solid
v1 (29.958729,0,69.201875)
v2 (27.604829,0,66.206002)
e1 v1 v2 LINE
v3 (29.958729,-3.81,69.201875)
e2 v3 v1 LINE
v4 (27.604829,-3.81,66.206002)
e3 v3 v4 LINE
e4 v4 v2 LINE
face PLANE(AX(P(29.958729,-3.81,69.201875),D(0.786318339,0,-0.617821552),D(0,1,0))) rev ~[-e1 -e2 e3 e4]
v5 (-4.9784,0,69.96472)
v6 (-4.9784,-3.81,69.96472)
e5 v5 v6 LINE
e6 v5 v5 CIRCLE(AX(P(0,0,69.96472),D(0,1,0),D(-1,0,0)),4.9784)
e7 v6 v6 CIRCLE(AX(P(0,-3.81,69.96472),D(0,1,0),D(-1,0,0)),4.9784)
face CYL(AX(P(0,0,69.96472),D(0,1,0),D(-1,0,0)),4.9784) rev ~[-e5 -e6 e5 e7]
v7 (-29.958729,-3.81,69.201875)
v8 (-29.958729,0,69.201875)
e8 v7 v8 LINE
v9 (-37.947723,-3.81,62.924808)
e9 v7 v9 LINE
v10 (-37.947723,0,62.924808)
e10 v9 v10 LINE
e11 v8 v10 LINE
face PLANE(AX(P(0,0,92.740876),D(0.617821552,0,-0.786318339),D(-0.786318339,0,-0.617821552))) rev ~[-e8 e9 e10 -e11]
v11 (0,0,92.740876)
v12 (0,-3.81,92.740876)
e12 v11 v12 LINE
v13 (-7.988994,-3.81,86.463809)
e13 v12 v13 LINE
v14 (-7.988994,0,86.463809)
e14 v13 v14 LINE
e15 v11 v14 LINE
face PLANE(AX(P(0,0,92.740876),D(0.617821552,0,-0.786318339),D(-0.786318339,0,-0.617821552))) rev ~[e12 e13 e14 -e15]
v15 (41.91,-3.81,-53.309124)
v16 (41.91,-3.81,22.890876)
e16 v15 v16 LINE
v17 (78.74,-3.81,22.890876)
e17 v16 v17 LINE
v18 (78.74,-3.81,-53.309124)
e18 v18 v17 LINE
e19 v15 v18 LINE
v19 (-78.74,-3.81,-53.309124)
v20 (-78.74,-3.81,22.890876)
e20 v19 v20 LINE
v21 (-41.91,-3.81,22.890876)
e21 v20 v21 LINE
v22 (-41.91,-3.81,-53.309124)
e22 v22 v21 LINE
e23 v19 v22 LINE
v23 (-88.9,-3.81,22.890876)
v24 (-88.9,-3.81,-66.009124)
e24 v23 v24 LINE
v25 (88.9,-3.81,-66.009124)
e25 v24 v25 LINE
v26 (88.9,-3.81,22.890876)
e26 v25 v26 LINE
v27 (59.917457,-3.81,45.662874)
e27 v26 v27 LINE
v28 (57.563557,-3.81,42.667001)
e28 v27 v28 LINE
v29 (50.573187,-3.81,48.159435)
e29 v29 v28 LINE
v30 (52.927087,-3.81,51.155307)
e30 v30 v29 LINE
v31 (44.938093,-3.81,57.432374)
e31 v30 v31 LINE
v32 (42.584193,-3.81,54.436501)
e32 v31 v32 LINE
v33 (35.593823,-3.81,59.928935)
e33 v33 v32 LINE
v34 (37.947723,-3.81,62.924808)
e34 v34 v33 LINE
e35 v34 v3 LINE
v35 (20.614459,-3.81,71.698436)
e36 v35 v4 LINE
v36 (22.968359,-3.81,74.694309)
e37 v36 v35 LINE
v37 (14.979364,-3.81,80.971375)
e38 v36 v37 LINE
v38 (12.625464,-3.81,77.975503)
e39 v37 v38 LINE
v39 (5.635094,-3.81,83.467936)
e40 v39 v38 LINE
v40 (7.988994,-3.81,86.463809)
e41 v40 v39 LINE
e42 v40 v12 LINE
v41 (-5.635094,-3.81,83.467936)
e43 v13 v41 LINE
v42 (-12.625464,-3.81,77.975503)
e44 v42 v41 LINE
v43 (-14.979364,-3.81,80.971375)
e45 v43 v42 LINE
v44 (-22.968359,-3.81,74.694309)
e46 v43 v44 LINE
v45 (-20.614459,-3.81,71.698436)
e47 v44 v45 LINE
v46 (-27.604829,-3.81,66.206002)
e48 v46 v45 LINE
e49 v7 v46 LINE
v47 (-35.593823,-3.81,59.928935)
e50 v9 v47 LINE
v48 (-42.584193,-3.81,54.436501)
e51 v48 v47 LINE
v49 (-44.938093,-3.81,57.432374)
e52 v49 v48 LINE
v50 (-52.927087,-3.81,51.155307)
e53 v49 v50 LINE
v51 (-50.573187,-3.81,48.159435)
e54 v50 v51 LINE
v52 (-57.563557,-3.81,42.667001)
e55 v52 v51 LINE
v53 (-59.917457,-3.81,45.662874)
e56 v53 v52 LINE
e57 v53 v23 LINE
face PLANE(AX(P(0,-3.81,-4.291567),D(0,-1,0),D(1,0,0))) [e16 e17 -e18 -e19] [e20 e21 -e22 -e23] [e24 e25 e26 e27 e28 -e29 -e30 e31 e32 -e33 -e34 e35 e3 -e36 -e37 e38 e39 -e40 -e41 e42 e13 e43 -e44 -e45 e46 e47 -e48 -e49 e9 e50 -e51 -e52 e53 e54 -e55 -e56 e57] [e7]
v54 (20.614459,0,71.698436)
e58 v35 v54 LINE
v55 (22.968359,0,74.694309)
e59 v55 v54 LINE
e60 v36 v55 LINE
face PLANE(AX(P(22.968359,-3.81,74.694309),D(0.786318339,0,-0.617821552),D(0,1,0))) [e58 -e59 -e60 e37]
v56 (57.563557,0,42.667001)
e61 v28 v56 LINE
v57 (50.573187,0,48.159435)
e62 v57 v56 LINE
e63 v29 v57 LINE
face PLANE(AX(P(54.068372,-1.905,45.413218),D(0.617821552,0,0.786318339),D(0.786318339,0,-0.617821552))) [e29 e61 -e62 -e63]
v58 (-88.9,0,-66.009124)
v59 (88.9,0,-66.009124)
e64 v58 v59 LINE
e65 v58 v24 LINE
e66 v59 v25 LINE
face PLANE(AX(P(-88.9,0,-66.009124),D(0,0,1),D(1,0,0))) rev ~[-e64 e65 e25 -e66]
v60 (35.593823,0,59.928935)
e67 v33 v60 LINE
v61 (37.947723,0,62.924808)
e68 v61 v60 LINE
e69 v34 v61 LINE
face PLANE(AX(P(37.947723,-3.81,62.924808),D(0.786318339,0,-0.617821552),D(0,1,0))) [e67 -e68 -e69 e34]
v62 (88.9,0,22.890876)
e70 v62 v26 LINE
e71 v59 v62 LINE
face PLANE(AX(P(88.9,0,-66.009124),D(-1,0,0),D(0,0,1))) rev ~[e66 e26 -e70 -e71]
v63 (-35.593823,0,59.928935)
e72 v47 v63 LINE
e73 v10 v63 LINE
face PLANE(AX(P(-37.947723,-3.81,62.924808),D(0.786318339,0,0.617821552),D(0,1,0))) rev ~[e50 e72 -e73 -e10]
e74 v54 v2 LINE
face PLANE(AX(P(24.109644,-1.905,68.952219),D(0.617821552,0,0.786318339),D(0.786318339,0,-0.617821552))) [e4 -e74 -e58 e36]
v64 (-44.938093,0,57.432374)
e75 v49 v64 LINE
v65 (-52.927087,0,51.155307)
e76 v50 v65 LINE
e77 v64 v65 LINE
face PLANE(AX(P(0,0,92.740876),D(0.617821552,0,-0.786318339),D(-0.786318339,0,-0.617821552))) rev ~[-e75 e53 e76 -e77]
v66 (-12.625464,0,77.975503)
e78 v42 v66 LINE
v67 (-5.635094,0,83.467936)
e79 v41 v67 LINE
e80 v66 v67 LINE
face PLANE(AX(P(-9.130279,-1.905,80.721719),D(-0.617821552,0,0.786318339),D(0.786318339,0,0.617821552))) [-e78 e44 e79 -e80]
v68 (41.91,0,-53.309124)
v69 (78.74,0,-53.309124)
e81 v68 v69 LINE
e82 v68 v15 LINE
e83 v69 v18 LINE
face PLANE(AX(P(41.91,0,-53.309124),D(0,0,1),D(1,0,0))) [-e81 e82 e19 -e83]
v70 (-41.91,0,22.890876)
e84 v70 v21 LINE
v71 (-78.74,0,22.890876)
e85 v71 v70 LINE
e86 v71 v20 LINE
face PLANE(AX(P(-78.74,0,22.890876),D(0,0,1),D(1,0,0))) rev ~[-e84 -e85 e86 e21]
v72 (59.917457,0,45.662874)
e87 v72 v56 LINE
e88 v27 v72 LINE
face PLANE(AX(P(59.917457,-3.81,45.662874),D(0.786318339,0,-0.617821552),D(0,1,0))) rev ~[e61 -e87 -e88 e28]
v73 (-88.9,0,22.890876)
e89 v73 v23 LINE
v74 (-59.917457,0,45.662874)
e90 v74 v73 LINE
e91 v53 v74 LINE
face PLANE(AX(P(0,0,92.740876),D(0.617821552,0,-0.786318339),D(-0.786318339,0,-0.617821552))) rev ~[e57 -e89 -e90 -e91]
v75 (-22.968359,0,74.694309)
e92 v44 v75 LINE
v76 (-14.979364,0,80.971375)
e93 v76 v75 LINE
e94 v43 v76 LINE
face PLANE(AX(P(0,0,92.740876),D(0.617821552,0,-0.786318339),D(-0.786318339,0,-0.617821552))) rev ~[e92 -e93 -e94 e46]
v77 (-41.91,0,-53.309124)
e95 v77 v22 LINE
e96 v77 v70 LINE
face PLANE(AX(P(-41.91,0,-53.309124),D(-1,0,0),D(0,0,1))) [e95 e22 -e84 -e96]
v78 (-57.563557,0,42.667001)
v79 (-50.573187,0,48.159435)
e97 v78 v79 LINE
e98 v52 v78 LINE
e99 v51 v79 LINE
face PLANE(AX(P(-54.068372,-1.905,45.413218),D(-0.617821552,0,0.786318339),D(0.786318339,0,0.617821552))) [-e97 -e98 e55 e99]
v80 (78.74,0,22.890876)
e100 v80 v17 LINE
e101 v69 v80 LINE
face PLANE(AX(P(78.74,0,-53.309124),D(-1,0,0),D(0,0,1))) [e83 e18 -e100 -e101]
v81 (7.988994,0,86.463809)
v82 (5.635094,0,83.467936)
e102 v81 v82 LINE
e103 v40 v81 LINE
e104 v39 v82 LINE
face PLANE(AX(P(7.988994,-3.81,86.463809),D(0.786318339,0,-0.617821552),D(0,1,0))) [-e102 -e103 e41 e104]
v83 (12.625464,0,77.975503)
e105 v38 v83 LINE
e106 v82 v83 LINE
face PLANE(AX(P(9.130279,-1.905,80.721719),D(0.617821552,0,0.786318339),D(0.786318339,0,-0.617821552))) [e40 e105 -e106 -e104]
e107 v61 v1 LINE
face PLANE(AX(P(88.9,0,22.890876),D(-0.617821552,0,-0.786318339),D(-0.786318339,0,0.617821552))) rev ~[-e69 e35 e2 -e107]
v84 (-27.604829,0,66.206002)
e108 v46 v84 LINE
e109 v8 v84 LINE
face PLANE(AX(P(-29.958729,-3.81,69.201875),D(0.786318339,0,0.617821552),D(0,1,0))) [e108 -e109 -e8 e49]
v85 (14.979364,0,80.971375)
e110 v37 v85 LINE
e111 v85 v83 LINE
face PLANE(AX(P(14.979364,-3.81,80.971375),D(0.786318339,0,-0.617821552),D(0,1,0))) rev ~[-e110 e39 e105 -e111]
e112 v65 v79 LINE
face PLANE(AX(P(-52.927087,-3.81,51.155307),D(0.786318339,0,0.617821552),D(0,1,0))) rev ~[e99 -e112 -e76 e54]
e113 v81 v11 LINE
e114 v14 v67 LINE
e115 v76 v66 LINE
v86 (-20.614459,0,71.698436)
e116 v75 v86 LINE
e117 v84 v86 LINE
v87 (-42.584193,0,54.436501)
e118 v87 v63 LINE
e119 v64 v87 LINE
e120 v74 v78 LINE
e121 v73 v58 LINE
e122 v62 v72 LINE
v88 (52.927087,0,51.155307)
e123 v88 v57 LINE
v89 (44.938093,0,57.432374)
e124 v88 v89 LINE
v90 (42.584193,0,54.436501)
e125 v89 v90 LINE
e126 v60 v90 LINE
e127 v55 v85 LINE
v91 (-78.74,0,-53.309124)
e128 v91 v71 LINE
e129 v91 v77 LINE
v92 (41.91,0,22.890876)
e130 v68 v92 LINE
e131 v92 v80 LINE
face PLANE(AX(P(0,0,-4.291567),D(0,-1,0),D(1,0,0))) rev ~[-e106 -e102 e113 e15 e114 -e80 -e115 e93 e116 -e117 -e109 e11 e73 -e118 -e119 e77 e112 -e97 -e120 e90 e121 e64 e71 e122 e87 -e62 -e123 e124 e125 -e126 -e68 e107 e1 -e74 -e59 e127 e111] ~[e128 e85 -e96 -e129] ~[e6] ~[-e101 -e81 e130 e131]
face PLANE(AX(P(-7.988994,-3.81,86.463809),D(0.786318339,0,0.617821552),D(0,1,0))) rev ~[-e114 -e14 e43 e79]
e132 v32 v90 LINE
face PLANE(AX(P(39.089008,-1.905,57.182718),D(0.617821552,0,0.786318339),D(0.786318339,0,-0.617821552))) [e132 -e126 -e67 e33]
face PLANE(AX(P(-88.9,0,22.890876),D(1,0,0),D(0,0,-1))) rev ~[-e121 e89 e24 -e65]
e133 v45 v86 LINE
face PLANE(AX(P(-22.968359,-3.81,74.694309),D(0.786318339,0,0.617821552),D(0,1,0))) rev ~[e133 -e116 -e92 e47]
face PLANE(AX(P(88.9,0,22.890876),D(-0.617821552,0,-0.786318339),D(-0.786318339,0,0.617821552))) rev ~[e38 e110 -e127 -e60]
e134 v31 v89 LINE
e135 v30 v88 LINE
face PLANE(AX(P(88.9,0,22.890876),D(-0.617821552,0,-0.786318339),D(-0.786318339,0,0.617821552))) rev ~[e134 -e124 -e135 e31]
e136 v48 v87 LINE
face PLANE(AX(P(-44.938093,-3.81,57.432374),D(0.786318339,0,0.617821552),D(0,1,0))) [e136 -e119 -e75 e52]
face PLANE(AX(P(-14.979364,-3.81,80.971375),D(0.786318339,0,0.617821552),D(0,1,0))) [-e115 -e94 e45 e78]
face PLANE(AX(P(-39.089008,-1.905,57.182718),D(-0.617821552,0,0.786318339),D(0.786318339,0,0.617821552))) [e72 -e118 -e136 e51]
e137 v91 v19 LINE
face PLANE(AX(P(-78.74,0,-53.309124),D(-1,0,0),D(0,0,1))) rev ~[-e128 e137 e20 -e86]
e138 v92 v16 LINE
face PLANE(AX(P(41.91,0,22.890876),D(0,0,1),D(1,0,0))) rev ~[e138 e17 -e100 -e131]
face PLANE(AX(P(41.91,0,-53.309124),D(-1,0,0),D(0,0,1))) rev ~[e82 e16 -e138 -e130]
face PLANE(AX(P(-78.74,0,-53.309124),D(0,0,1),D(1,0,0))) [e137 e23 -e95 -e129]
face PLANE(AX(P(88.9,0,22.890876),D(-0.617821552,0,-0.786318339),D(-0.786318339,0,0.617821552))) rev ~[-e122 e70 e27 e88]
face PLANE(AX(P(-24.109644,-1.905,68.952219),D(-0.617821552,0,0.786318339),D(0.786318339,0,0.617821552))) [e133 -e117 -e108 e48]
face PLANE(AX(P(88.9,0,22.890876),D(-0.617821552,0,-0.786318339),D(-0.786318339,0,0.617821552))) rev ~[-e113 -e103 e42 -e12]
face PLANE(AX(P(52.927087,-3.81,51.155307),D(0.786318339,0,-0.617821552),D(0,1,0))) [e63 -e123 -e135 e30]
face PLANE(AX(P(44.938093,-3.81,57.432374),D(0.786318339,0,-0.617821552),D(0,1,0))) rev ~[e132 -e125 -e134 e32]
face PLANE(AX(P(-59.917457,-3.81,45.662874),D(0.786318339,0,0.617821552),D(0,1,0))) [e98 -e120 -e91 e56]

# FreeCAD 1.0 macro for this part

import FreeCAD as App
import Part
import Sketcher
Q = App.Units.Quantity

doc = App.newDocument("Part")
body = doc.addObject("PartDesign::Body", "Body")

# Sketch on XZ plane
sketch1 = doc.addObject("Sketcher::SketchObject", "Sketch")
body.addObject(sketch1)
sketch1.AttachmentSupport = (doc.XZ_Plane, [""])
sketch1.MapMode = "FlatFace"
sketch1.addGeometry([
    Part.LineSegment(App.Vector(-88.9, -66.009124, 0), App.Vector(88.9, -66.009124, 0)),  # 0
    Part.LineSegment(App.Vector(88.9, -66.009124, 0), App.Vector(88.9, 22.890876, 0)),  # 1
    Part.LineSegment(App.Vector(88.9, 22.890876, 0), App.Vector(0, 92.740876, 0)),  # 2
    Part.LineSegment(App.Vector(0, 92.740876, 0), App.Vector(-88.9, 22.890876, 0)),  # 3
    Part.LineSegment(App.Vector(-88.9, 22.890876, 0), App.Vector(-88.9, -66.009124, 0)),  # 4
    Part.LineSegment(App.Vector(-41.91, -53.309124, 0), App.Vector(-78.74, -53.309124, 0)),  # 5
    Part.LineSegment(App.Vector(-78.74, -53.309124, 0), App.Vector(-78.74, 22.890876, 0)),  # 6
    Part.LineSegment(App.Vector(-78.74, 22.890876, 0), App.Vector(-41.91, 22.890876, 0)),  # 7
    Part.LineSegment(App.Vector(-41.91, 22.890876, 0), App.Vector(-41.91, -53.309124, 0)),  # 8
    Part.LineSegment(App.Vector(78.74, -53.309124, 0), App.Vector(41.91, -53.309124, 0)),  # 9
    Part.LineSegment(App.Vector(41.91, -53.309124, 0), App.Vector(41.91, 22.890876, 0)),  # 10
    Part.LineSegment(App.Vector(41.91, 22.890876, 0), App.Vector(78.74, 22.890876, 0)),  # 11
    Part.LineSegment(App.Vector(78.74, 22.890876, 0), App.Vector(78.74, -53.309124, 0)),  # 12
], False)
sketch1.addConstraint([
    Sketcher.Constraint("Coincident", 0, 2, 1, 1),
    Sketcher.Constraint("Coincident", 1, 2, 2, 1),
    Sketcher.Constraint("Coincident", 2, 2, 3, 1),
    Sketcher.Constraint("Coincident", 3, 2, 4, 1),
    Sketcher.Constraint("Coincident", 4, 2, 0, 1),
    Sketcher.Constraint("Coincident", 5, 2, 6, 1),
    Sketcher.Constraint("Coincident", 6, 2, 7, 1),
    Sketcher.Constraint("Coincident", 7, 2, 8, 1),
    Sketcher.Constraint("Coincident", 8, 2, 5, 1),
    Sketcher.Constraint("Coincident", 9, 2, 10, 1),
    Sketcher.Constraint("Coincident", 10, 2, 11, 1),
    Sketcher.Constraint("Coincident", 11, 2, 12, 1),
    Sketcher.Constraint("Coincident", 12, 2, 9, 1),
    Sketcher.Constraint("Horizontal", 0),
    Sketcher.Constraint("Vertical", 1),
    Sketcher.Constraint("Vertical", 4),
    Sketcher.Constraint("Horizontal", 5),
    Sketcher.Constraint("Vertical", 6),
    Sketcher.Constraint("Horizontal", 7),
    Sketcher.Constraint("Vertical", 8),
    Sketcher.Constraint("Horizontal", 9),
    Sketcher.Constraint("Vertical", 10),
    Sketcher.Constraint("Horizontal", 11),
    Sketcher.Constraint("Vertical", 12),
    Sketcher.Constraint("Symmetric", 1, 2, 3, 2, -2),
    Sketcher.Constraint("Symmetric", 8, 2, 9, 2, -2),
    Sketcher.Constraint("Symmetric", 6, 2, 11, 2, -2),
    Sketcher.Constraint("PointOnObject", 2, 2, -2),
    Sketcher.Constraint("Horizontal", 3, 2, 6, 2),
    Sketcher.Constraint("DistanceX", 0, 1, 0, 2, Q("7 in")),
    Sketcher.Constraint("DistanceY", 6, 1, 6, 2, Q("3 in")),
    Sketcher.Constraint("DistanceY", 1, 1, 1, 2, Q("3.5 in")),
    Sketcher.Constraint("DistanceX", 5, 2, 5, 1, Q("1.45 in")),
    Sketcher.Constraint("DistanceX", 5, 2, -1, 1, Q("3.1 in")),
    Sketcher.Constraint("DistanceY", 1, 2, 2, 2, Q("2.75 in")),
    Sketcher.Constraint("DistanceY", 0, 2, -1, 1, 66.009124),
])
pad1 = doc.addObject("PartDesign::Pad", "Pad")
body.addObject(pad1)
pad1.Profile = sketch1
pad1.Length = Q("0.15 in")

# Sketch on an angled plane
sketch2 = doc.addObject("Sketcher::SketchObject", "Sketch001")
body.addObject(sketch2)
sketch2.Placement = App.Placement(App.Vector(-45.053927, 0, 57.341362), App.Rotation(App.Vector(0.786318339, 0, 0.617821552), App.Vector(0, 1, 0), App.Vector(-0.617821552, 0, 0.786318339), "ZXY"))
sketch2.addGeometry([
    Part.LineSegment(App.Vector(-18.902688, 0, 0), App.Vector(-18.902688, -3.81, 0)),  # 0
    Part.LineSegment(App.Vector(-18.902688, -3.81, 0), App.Vector(-10.012688, -3.81, 0)),  # 1
    Part.LineSegment(App.Vector(-10.012688, -3.81, 0), App.Vector(-10.012688, 0, 0)),  # 2
    Part.LineSegment(App.Vector(-10.012688, 0, 0), App.Vector(-18.902688, 0, 0)),  # 3
    Part.LineSegment(App.Vector(19.197312, 0, 0), App.Vector(19.197312, -3.81, 0)),  # 4
    Part.LineSegment(App.Vector(19.197312, -3.81, 0), App.Vector(28.087312, -3.81, 0)),  # 5
    Part.LineSegment(App.Vector(28.087312, -3.81, 0), App.Vector(28.087312, 0, 0)),  # 6
    Part.LineSegment(App.Vector(28.087312, 0, 0), App.Vector(19.197312, 0, 0)),  # 7
    Part.LineSegment(App.Vector(38.247312, 0, 0), App.Vector(38.247312, -3.81, 0)),  # 8
    Part.LineSegment(App.Vector(38.247312, -3.81, 0), App.Vector(47.137312, -3.81, 0)),  # 9
    Part.LineSegment(App.Vector(47.137312, -3.81, 0), App.Vector(47.137312, 0, 0)),  # 10
    Part.LineSegment(App.Vector(47.137312, 0, 0), App.Vector(38.247312, 0, 0)),  # 11
    Part.LineSegment(App.Vector(0.147312, 0, 0), App.Vector(0.147312, -3.81, 0)),  # 12
    Part.LineSegment(App.Vector(0.147312, -3.81, 0), App.Vector(9.037312, -3.81, 0)),  # 13
    Part.LineSegment(App.Vector(9.037312, -3.81, 0), App.Vector(9.037312, 0, 0)),  # 14
    Part.LineSegment(App.Vector(9.037312, 0, 0), App.Vector(0.147312, 0, 0)),  # 15
], False)
sketch2.addConstraint([
    Sketcher.Constraint("Coincident", 0, 2, 1, 1),
    Sketcher.Constraint("Coincident", 1, 2, 2, 1),
    Sketcher.Constraint("Coincident", 2, 2, 3, 1),
    Sketcher.Constraint("Coincident", 3, 2, 0, 1),
    Sketcher.Constraint("Coincident", 4, 2, 5, 1),
    Sketcher.Constraint("Coincident", 5, 2, 6, 1),
    Sketcher.Constraint("Coincident", 6, 2, 7, 1),
    Sketcher.Constraint("Coincident", 7, 2, 4, 1),
    Sketcher.Constraint("Coincident", 8, 2, 9, 1),
    Sketcher.Constraint("Coincident", 9, 2, 10, 1),
    Sketcher.Constraint("Coincident", 10, 2, 11, 1),
    Sketcher.Constraint("Coincident", 11, 2, 8, 1),
    Sketcher.Constraint("Coincident", 12, 2, 13, 1),
    Sketcher.Constraint("Coincident", 13, 2, 14, 1),
    Sketcher.Constraint("Coincident", 14, 2, 15, 1),
    Sketcher.Constraint("Coincident", 15, 2, 12, 1),
    Sketcher.Constraint("Vertical", 0),
    Sketcher.Constraint("Horizontal", 1),
    Sketcher.Constraint("Vertical", 2),
    Sketcher.Constraint("Horizontal", 3),
    Sketcher.Constraint("Vertical", 4),
    Sketcher.Constraint("Horizontal", 5),
    Sketcher.Constraint("Vertical", 6),
    Sketcher.Constraint("Horizontal", 7),
    Sketcher.Constraint("Vertical", 8),
    Sketcher.Constraint("Horizontal", 9),
    Sketcher.Constraint("Vertical", 10),
    Sketcher.Constraint("Horizontal", 11),
    Sketcher.Constraint("Vertical", 12),
    Sketcher.Constraint("Horizontal", 13),
    Sketcher.Constraint("Vertical", 14),
    Sketcher.Constraint("Horizontal", 15),
    Sketcher.Constraint("PointOnObject", 2, 2, -1),
    Sketcher.Constraint("PointOnObject", 6, 2, -1),
    Sketcher.Constraint("PointOnObject", 10, 2, -1),
    Sketcher.Constraint("PointOnObject", 14, 2, -1),
    Sketcher.Constraint("Horizontal", 1, 2, 4, 2),
    Sketcher.Constraint("Horizontal", 5, 2, 8, 2),
    Sketcher.Constraint("Horizontal", 9, 2, 12, 2),
    Sketcher.Constraint("Equal", 3, 5),
    Sketcher.Constraint("Equal", 7, 9),
    Sketcher.Constraint("Equal", 11, 13),
    Sketcher.Constraint("DistanceX", 1, 1, 1, 2, Q("0.35 in")),
    Sketcher.Constraint("DistanceY", 0, 2, 0, 1, Q("0.15 in")),
    Sketcher.Constraint("DistanceX", 0, 2, 4, 2, Q("1.5 in")),
    Sketcher.Constraint("DistanceX", 5, 2, 8, 2, Q("0.4 in")),
    Sketcher.Constraint("DistanceX", 1, 2, 12, 2, Q("0.4 in")),
    Sketcher.Constraint("DistanceX", 0, 2, -1, 1, 18.902688),
])
pocket1 = doc.addObject("PartDesign::Pocket", "Pocket")
body.addObject(pocket1)
pocket1.Profile = sketch2
pocket1.Length = Q("0.15 in")

# Sketch on an angled plane
sketch3 = doc.addObject("Sketcher::SketchObject", "Sketch002")
body.addObject(sketch3)
sketch3.Placement = App.Placement(App.Vector(45.053927, 0, 57.341362), App.Rotation(App.Vector(0.786318339, 0, -0.617821552), App.Vector(0, 1, 0), App.Vector(0.617821552, 0, 0.786318339), "ZXY"))
sketch3.addGeometry([
    Part.LineSegment(App.Vector(-47.137312, 0, 0), App.Vector(-47.137312, -3.81, 0)),  # 0
    Part.LineSegment(App.Vector(-47.137312, -3.81, 0), App.Vector(-38.247312, -3.81, 0)),  # 1
    Part.LineSegment(App.Vector(-38.247312, -3.81, 0), App.Vector(-38.247312, 0, 0)),  # 2
    Part.LineSegment(App.Vector(-38.247312, 0, 0), App.Vector(-47.137312, 0, 0)),  # 3
    Part.LineSegment(App.Vector(-28.087312, 0, 0), App.Vector(-28.087312, -3.81, 0)),  # 4
    Part.LineSegment(App.Vector(-28.087312, -3.81, 0), App.Vector(-19.197312, -3.81, 0)),  # 5
    Part.LineSegment(App.Vector(-19.197312, -3.81, 0), App.Vector(-19.197312, 0, 0)),  # 6
    Part.LineSegment(App.Vector(-19.197312, 0, 0), App.Vector(-28.087312, 0, 0)),  # 7
    Part.LineSegment(App.Vector(-9.037312, 0, 0), App.Vector(-9.037312, -3.81, 0)),  # 8
    Part.LineSegment(App.Vector(-9.037312, -3.81, 0), App.Vector(-0.147312, -3.81, 0)),  # 9
    Part.LineSegment(App.Vector(-0.147312, -3.81, 0), App.Vector(-0.147312, 0, 0)),  # 10
    Part.LineSegment(App.Vector(-0.147312, 0, 0), App.Vector(-9.037312, 0, 0)),  # 11
    Part.LineSegment(App.Vector(10.012688, 0, 0), App.Vector(10.012688, -3.81, 0)),  # 12
    Part.LineSegment(App.Vector(10.012688, -3.81, 0), App.Vector(18.902688, -3.81, 0)),  # 13
    Part.LineSegment(App.Vector(18.902688, -3.81, 0), App.Vector(18.902688, 0, 0)),  # 14
    Part.LineSegment(App.Vector(18.902688, 0, 0), App.Vector(10.012688, 0, 0)),  # 15
], False)
sketch3.addConstraint([
    Sketcher.Constraint("Coincident", 0, 2, 1, 1),
    Sketcher.Constraint("Coincident", 1, 2, 2, 1),
    Sketcher.Constraint("Coincident", 2, 2, 3, 1),
    Sketcher.Constraint("Coincident", 3, 2, 0, 1),
    Sketcher.Constraint("Coincident", 4, 2, 5, 1),
    Sketcher.Constraint("Coincident", 5, 2, 6, 1),
    Sketcher.Constraint("Coincident", 6, 2, 7, 1),
    Sketcher.Constraint("Coincident", 7, 2, 4, 1),
    Sketcher.Constraint("Coincident", 8, 2, 9, 1),
    Sketcher.Constraint("Coincident", 9, 2, 10, 1),
    Sketcher.Constraint("Coincident", 10, 2, 11, 1),
    Sketcher.Constraint("Coincident", 11, 2, 8, 1),
    Sketcher.Constraint("Coincident", 12, 2, 13, 1),
    Sketcher.Constraint("Coincident", 13, 2, 14, 1),
    Sketcher.Constraint("Coincident", 14, 2, 15, 1),
    Sketcher.Constraint("Coincident", 15, 2, 12, 1),
    Sketcher.Constraint("Vertical", 0),
    Sketcher.Constraint("Horizontal", 1),
    Sketcher.Constraint("Vertical", 2),
    Sketcher.Constraint("Horizontal", 3),
    Sketcher.Constraint("Vertical", 4),
    Sketcher.Constraint("Horizontal", 5),
    Sketcher.Constraint("Vertical", 6),
    Sketcher.Constraint("Horizontal", 7),
    Sketcher.Constraint("Vertical", 8),
    Sketcher.Constraint("Horizontal", 9),
    Sketcher.Constraint("Vertical", 10),
    Sketcher.Constraint("Horizontal", 11),
    Sketcher.Constraint("Vertical", 12),
    Sketcher.Constraint("Horizontal", 13),
    Sketcher.Constraint("Vertical", 14),
    Sketcher.Constraint("Horizontal", 15),
    Sketcher.Constraint("PointOnObject", 2, 2, -1),
    Sketcher.Constraint("PointOnObject", 6, 2, -1),
    Sketcher.Constraint("PointOnObject", 10, 2, -1),
    Sketcher.Constraint("PointOnObject", 14, 2, -1),
    Sketcher.Constraint("Horizontal", 1, 2, 4, 2),
    Sketcher.Constraint("Horizontal", 5, 2, 8, 2),
    Sketcher.Constraint("Horizontal", 9, 2, 12, 2),
    Sketcher.Constraint("Equal", 3, 5),
    Sketcher.Constraint("Equal", 7, 9),
    Sketcher.Constraint("Equal", 11, 13),
    Sketcher.Constraint("DistanceX", 1, 1, 1, 2, Q("0.35 in")),
    Sketcher.Constraint("DistanceY", 0, 2, 0, 1, Q("0.15 in")),
    Sketcher.Constraint("DistanceX", 1, 2, 4, 2, Q("0.4 in")),
    Sketcher.Constraint("DistanceX", 5, 2, 8, 2, Q("0.4 in")),
    Sketcher.Constraint("DistanceX", 9, 2, 12, 2, Q("0.4 in")),
    Sketcher.Constraint("DistanceX", 0, 2, -1, 1, 47.137312),
])
pocket2 = doc.addObject("PartDesign::Pocket", "Pocket001")
body.addObject(pocket2)
pocket2.Profile = sketch3
pocket2.Length = Q("0.15 in")

# Sketch on XZ plane
sketch4 = doc.addObject("Sketcher::SketchObject", "Sketch003")
body.addObject(sketch4)
sketch4.AttachmentSupport = (doc.XZ_Plane, [""])
sketch4.MapMode = "FlatFace"
sketch4.addGeometry(Part.Circle(App.Vector(0, 69.96472, 0), App.Vector(0, 0, 1), 4.9784), False)
sketch4.addConstraint([
    Sketcher.Constraint("PointOnObject", 0, 3, -2),
    Sketcher.Constraint("Diameter", 0, Q("0.392 in")),
    Sketcher.Constraint("DistanceY", -1, 1, 0, 3, 69.96472),
])
pocket3 = doc.addObject("PartDesign::Pocket", "Pocket002")
body.addObject(pocket3)
pocket3.Profile = sketch4
pocket3.Length = Q("0.15 in")
pocket3.Reversed = True

doc.recompute()
